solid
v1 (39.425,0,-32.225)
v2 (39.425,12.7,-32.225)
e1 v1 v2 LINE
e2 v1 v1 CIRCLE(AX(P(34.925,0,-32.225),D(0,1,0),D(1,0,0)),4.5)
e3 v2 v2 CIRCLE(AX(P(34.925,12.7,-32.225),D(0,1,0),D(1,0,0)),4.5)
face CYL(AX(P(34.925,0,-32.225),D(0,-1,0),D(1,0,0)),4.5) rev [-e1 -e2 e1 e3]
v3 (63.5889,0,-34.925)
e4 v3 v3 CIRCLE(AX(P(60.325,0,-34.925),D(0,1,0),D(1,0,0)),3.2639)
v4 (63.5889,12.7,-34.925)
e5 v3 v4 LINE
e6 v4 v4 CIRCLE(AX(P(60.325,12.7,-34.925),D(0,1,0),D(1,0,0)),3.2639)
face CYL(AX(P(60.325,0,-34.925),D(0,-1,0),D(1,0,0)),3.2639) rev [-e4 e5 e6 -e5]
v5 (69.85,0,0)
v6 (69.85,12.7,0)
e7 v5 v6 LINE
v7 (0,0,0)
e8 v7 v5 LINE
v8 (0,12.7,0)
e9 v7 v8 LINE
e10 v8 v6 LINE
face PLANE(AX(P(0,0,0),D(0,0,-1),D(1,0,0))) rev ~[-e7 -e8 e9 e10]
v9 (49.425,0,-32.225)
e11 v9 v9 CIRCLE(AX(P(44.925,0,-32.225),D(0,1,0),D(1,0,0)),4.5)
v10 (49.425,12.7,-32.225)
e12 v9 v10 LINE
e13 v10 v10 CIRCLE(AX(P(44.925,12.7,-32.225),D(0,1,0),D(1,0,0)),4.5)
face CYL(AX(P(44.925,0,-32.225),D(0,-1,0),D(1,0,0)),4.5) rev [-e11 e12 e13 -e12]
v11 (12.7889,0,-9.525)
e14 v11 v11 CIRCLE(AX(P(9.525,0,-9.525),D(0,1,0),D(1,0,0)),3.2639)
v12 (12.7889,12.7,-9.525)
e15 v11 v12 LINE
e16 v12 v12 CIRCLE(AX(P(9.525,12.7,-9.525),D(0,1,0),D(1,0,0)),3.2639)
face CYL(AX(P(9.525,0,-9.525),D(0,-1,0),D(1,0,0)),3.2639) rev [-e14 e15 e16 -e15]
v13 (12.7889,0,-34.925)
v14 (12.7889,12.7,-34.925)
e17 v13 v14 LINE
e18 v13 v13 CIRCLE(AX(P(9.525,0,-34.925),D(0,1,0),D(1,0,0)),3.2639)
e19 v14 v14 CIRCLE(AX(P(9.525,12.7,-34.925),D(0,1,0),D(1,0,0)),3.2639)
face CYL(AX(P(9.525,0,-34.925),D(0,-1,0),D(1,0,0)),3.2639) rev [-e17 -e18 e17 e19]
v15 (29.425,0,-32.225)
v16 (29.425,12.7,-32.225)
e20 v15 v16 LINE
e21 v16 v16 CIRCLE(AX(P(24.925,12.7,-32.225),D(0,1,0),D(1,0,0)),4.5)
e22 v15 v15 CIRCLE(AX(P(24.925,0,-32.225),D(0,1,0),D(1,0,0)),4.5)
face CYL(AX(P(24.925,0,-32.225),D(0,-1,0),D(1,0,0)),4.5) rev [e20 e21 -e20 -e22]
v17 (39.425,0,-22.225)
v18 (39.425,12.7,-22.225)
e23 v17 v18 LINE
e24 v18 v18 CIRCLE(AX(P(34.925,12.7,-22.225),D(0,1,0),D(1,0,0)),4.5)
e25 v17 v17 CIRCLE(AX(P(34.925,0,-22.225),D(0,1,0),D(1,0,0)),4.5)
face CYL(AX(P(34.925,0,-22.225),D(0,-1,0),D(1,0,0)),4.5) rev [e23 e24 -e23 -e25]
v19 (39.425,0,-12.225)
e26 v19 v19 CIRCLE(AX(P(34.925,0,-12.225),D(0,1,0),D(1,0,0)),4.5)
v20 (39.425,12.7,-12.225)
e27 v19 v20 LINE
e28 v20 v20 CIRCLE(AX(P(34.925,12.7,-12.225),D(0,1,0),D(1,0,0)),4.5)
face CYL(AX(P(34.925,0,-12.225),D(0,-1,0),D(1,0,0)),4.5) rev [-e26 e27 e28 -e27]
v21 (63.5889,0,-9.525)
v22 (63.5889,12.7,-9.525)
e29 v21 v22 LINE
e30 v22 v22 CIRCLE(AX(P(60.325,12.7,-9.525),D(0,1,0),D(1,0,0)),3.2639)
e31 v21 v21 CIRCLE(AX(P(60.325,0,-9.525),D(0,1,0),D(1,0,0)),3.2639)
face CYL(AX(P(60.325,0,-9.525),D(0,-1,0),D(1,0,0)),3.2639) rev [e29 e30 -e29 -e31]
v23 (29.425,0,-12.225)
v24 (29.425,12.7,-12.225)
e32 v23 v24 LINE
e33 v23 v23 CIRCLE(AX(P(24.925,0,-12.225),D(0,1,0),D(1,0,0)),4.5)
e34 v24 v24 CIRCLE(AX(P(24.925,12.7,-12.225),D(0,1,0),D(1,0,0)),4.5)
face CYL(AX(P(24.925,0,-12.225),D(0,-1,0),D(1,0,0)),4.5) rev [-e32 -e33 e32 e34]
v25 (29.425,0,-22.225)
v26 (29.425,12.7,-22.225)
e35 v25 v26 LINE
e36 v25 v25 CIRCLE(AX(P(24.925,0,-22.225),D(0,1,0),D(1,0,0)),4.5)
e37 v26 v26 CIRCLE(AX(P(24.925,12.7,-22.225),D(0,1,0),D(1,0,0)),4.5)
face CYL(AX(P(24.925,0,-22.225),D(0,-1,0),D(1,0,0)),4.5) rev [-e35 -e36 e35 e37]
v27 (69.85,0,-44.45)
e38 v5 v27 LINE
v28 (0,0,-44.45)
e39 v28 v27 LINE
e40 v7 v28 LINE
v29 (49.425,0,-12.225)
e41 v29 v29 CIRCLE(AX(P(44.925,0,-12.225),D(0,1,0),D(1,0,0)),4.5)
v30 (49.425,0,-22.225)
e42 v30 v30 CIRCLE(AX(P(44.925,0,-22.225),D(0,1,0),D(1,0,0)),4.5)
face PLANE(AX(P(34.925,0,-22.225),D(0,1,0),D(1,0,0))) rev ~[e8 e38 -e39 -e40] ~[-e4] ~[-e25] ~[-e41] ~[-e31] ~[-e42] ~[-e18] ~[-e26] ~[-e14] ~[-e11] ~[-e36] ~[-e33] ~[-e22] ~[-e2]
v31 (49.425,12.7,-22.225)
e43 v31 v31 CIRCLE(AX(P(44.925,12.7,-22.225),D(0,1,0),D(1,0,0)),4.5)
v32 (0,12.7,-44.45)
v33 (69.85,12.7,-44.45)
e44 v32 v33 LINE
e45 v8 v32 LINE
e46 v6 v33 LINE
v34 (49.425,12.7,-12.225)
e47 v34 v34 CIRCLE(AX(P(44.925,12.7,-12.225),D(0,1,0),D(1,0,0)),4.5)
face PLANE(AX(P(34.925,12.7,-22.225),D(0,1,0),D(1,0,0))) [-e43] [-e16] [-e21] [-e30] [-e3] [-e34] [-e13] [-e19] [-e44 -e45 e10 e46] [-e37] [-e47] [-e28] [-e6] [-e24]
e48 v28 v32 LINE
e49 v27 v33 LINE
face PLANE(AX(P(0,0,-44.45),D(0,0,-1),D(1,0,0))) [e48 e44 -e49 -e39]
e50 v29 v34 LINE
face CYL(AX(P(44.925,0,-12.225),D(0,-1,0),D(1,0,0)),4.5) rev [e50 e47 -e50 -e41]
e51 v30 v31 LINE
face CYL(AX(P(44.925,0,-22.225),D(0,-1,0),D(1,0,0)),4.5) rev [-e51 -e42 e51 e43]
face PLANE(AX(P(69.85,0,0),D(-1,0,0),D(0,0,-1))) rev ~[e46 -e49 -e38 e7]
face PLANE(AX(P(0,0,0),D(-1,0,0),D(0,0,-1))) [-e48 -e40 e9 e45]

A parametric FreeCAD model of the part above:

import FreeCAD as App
import Part
import Sketcher
from FreeCAD import Vector
Q = App.Units.Quantity

doc = App.newDocument("Part")
body = doc.addObject("PartDesign::Body", "Body")

# Sketch on XZ plane
sketch1 = doc.addObject("Sketcher::SketchObject", "Sketch")
body.addObject(sketch1)
sketch1.AttachmentSupport = (doc.XZ_Plane, [""])
sketch1.MapMode = "FlatFace"
sketch1.addGeometry(Part.LineSegment(Vector(0, -44.5, 0), Vector(0, 0, 0)), False)
sketch1.addGeometry(Part.LineSegment(Vector(0, 0, 0), Vector(69.8, 0, 0)), False)
sketch1.addGeometry(Part.LineSegment(Vector(69.8, 0, 0), Vector(69.8, -44.5, 0)), False)
sketch1.addGeometry(Part.LineSegment(Vector(69.8, -44.5, 0), Vector(0, -44.5, 0)), False)
sketch1.addGeometry(Part.Circle(Vector(9.5, -9.5, 0), Vector(0, 0, 1), 3.3), False)
sketch1.addGeometry(Part.Circle(Vector(24.9, -12.2, 0), Vector(0, 0, 1), 4.5), False)
sketch1.addGeometry(Part.Circle(Vector(34.9, -12.2, 0), Vector(0, 0, 1), 4.5), False)
sketch1.addGeometry(Part.Circle(Vector(44.9, -12.2, 0), Vector(0, 0, 1), 4.5), False)
sketch1.addGeometry(Part.Circle(Vector(60.3, -9.5, 0), Vector(0, 0, 1), 3.3), False)
sketch1.addGeometry(Part.Circle(Vector(24.9, -22.2, 0), Vector(0, 0, 1), 4.5), False)
sketch1.addGeometry(Part.Circle(Vector(34.9, -22.2, 0), Vector(0, 0, 1), 4.5), False)
sketch1.addGeometry(Part.Circle(Vector(9.5, -34.9, 0), Vector(0, 0, 1), 3.3), False)
sketch1.addGeometry(Part.Circle(Vector(24.9, -32.2, 0), Vector(0, 0, 1), 4.5), False)
sketch1.addGeometry(Part.Circle(Vector(34.9, -32.2, 0), Vector(0, 0, 1), 4.5), False)
sketch1.addGeometry(Part.Circle(Vector(44.9, -22.2, 0), Vector(0, 0, 1), 4.5), False)
sketch1.addGeometry(Part.Circle(Vector(44.9, -32.2, 0), Vector(0, 0, 1), 4.5), False)
sketch1.addGeometry(Part.Circle(Vector(60.3, -34.9, 0), Vector(0, 0, 1), 3.3), False)
sketch1.addConstraint(Sketcher.Constraint("Coincident", 0, 2, 1, 1))
sketch1.addConstraint(Sketcher.Constraint("Coincident", 1, 2, 2, 1))
sketch1.addConstraint(Sketcher.Constraint("Coincident", 2, 2, 3, 1))
sketch1.addConstraint(Sketcher.Constraint("Coincident", 3, 2, 0, 1))
sketch1.addConstraint(Sketcher.Constraint("Vertical", 0))
sketch1.addConstraint(Sketcher.Constraint("Horizontal", 1))
sketch1.addConstraint(Sketcher.Constraint("Vertical", 2))
sketch1.addConstraint(Sketcher.Constraint("Horizontal", 3))
sketch1.addConstraint(Sketcher.Constraint("Coincident", 0, 2, -1, 1))
sketch1.addConstraint(Sketcher.Constraint("Equal", 5, 6))
sketch1.addConstraint(Sketcher.Constraint("Equal", 6, 7))
sketch1.addConstraint(Sketcher.Constraint("Equal", 4, 8))
sketch1.addConstraint(Sketcher.Constraint("Equal", 7, 9))
sketch1.addConstraint(Sketcher.Constraint("Equal", 9, 10))
sketch1.addConstraint(Sketcher.Constraint("Equal", 8, 11))
sketch1.addConstraint(Sketcher.Constraint("Equal", 10, 12))
sketch1.addConstraint(Sketcher.Constraint("Equal", 12, 13))
sketch1.addConstraint(Sketcher.Constraint("Equal", 13, 14))
sketch1.addConstraint(Sketcher.Constraint("Equal", 14, 15))
sketch1.addConstraint(Sketcher.Constraint("Equal", 11, 16))
sketch1.addConstraint(Sketcher.Constraint("Horizontal", 5, 3, 6, 3))
sketch1.addConstraint(Sketcher.Constraint("Horizontal", 6, 3, 7, 3))
sketch1.addConstraint(Sketcher.Constraint("Horizontal", 4, 3, 8, 3))
sketch1.addConstraint(Sketcher.Constraint("Horizontal", 9, 3, 10, 3))
sketch1.addConstraint(Sketcher.Constraint("Horizontal", 12, 3, 13, 3))
sketch1.addConstraint(Sketcher.Constraint("Horizontal", 10, 3, 14, 3))
sketch1.addConstraint(Sketcher.Constraint("Horizontal", 13, 3, 15, 3))
sketch1.addConstraint(Sketcher.Constraint("Horizontal", 11, 3, 16, 3))
sketch1.addConstraint(Sketcher.Constraint("Vertical", 5, 3, 9, 3))
sketch1.addConstraint(Sketcher.Constraint("Vertical", 6, 3, 10, 3))
sketch1.addConstraint(Sketcher.Constraint("Vertical", 4, 3, 11, 3))
sketch1.addConstraint(Sketcher.Constraint("Vertical", 9, 3, 12, 3))
sketch1.addConstraint(Sketcher.Constraint("Vertical", 10, 3, 13, 3))
sketch1.addConstraint(Sketcher.Constraint("Vertical", 7, 3, 14, 3))
sketch1.addConstraint(Sketcher.Constraint("Vertical", 14, 3, 15, 3))
sketch1.addConstraint(Sketcher.Constraint("Vertical", 8, 3, 16, 3))
sketch1.addConstraint(Sketcher.Constraint("Diameter", 4, Q("0.257 in")))
sketch1.addConstraint(Sketcher.Constraint("DistanceX", 4, 3, 6, 3, Q("1 in")))
sketch1.addConstraint(Sketcher.Constraint("DistanceX", 6, 3, 8, 3, Q("1 in")))
sketch1.addConstraint(Sketcher.Constraint("DistanceY", 11, 3, 4, 3, Q("1 in")))
sketch1.addConstraint(Sketcher.Constraint("DistanceX", 1, 1, 1, 2, Q("2.75 in")))
sketch1.addConstraint(Sketcher.Constraint("DistanceY", 0, 1, 0, 2, Q("1.75 in")))
sketch1.addConstraint(Sketcher.Constraint("DistanceY", 9, 3, 4, 3, Q("0.5 in")))
sketch1.addConstraint(Sketcher.Constraint("Diameter", 5, Q("9 mm")))
sketch1.addConstraint(Sketcher.Constraint("DistanceX", -1, 1, 4, 3, Q("0.375 in")))
sketch1.addConstraint(Sketcher.Constraint("DistanceY", 4, 3, -1, 1, Q("0.375 in")))
sketch1.addConstraint(Sketcher.Constraint("DistanceX", -1, 1, 5, 3, Q("24.925 mm")))
sketch1.addConstraint(Sketcher.Constraint("DistanceY", 5, 3, -1, 1, Q("12.225 mm")))
sketch1.addConstraint(Sketcher.Constraint("DistanceX", -1, 1, 7, 3, Q("44.925 mm")))
sketch1.addConstraint(Sketcher.Constraint("DistanceY", 12, 3, -1, 1, Q("32.225 mm")))
pad1 = doc.addObject("PartDesign::Pad", "Pad")
body.addObject(pad1)
pad1.Profile = sketch1
pad1.Length = Q("0.5 in")
pad1.Reversed = True

doc.recompute()
